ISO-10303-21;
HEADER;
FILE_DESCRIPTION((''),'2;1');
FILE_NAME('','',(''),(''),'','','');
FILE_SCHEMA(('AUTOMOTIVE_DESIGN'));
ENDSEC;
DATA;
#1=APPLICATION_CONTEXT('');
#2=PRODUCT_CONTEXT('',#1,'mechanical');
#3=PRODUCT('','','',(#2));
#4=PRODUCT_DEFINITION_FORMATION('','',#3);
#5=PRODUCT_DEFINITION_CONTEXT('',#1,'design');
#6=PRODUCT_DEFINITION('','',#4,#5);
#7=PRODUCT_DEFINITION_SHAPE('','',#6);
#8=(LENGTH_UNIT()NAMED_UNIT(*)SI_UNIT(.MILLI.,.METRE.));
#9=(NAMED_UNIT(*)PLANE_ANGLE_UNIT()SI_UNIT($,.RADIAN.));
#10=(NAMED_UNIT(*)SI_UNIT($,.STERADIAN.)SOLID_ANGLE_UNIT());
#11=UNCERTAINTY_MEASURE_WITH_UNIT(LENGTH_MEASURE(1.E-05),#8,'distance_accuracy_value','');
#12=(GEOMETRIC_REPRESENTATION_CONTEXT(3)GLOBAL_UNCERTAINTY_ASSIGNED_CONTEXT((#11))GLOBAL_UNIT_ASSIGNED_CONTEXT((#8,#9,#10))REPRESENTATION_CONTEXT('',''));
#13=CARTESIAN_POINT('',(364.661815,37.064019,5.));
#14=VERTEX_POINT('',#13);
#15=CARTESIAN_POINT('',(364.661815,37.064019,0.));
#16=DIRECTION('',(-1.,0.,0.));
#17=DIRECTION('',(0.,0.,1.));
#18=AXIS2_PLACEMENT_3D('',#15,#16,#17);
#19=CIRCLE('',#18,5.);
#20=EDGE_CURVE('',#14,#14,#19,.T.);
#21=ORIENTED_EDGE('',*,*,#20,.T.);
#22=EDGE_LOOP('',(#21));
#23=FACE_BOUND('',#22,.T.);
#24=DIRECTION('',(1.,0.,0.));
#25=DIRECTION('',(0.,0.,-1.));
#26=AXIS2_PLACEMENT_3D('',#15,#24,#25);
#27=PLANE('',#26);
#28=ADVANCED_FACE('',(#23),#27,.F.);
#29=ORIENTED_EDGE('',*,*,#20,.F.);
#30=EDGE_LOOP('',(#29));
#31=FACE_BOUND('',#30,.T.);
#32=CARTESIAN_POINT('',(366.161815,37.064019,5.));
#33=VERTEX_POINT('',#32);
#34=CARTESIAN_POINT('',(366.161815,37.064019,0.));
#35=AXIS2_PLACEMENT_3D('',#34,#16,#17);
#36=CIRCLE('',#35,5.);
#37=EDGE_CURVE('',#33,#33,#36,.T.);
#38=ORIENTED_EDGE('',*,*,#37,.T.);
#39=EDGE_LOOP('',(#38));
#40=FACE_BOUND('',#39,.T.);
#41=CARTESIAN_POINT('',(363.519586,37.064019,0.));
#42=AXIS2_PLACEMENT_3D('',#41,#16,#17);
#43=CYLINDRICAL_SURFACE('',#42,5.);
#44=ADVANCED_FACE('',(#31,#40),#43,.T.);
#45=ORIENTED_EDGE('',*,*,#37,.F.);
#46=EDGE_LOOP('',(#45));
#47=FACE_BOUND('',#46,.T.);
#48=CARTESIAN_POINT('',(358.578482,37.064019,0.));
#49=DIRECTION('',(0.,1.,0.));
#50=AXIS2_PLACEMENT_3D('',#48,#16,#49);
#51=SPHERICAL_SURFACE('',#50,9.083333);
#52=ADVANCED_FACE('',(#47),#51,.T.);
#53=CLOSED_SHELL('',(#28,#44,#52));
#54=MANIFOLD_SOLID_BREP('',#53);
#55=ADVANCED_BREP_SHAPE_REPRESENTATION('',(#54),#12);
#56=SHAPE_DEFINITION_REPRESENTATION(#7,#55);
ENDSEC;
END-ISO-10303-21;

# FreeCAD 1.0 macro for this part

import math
import FreeCAD as App
import Part
import Sketcher

V = App.Vector

doc = App.newDocument("Part")
params = doc.addObject("Spreadsheet::Sheet", "Params")
for row, (alias, value) in enumerate([
    ("sketch1_width", "3 mm"),
    ("sketch1_height", "5 mm"),
    ("sketch1_width2", "1.5 mm"),
    ("revolution_angle", "360 deg"),
], start=1):
    params.set(f"A{row}", alias)
    params.set(f"B{row}", "=" + value)
    params.setAlias(f"B{row}", alias)

body = doc.addObject("PartDesign::Body", "Body")

# Sketch on XY plane
sketch1 = body.newObject("Sketcher::SketchObject", "Sketch")
sketch1.AttachmentSupport = (doc.getObject("XY_Plane"), [""])
sketch1.MapMode = "FlatFace"
sketch1.addGeometry([
    Part.LineSegment(V(364.7, 42.1, 0), V(364.7, 37.1, 0)),
    Part.LineSegment(V(364.7, 37.1, 0), V(367.7, 37.1, 0)),
    Part.ArcOfCircle(Part.Circle(V(358.6, 37.1, 0), V(0, 0, 1), 9.1), math.radians(0), math.radians(33)),
    Part.LineSegment(V(366.2, 42.1, 0), V(364.7, 42.1, 0)),
], False)
sketch1.addGeometry(Part.LineSegment(V(358.6, 37.1, 0), V(367.7, 37.1, 0)), True)  # axis
sketch1.addConstraint([
    Sketcher.Constraint("Coincident", 0, 2, 1, 1),
    Sketcher.Constraint("Coincident", 1, 2, 2, 1),
    Sketcher.Constraint("Coincident", 2, 2, 3, 1),
    Sketcher.Constraint("Coincident", 3, 2, 0, 1),
    Sketcher.Constraint("Vertical", 0),
    Sketcher.Constraint("Horizontal", 1),
    Sketcher.Constraint("Horizontal", 3),
    Sketcher.Constraint("Horizontal", 4),
    Sketcher.Constraint("Coincident", 4, 1, 2, 3),
    Sketcher.Constraint("Coincident", 4, 2, 1, 2),
    Sketcher.Constraint("DistanceX", 1, 1, 1, 2, 3.0),
    Sketcher.Constraint("DistanceY", 0, 2, 0, 1, 5.0),
    Sketcher.Constraint("DistanceX", 3, 2, 3, 1, 1.5),
    Sketcher.Constraint("DistanceY", -1, 1, 2, 3, 37.064019),
    Sketcher.Constraint("DistanceX", -1, 1, 2, 3, 358.578482),
])
sketch1.setExpression("Constraints[10]", "Params.sketch1_width")
sketch1.setExpression("Constraints[11]", "Params.sketch1_height")
sketch1.setExpression("Constraints[12]", "Params.sketch1_width2")
revolution = body.newObject("PartDesign::Revolution", "Revolution")
revolution.Profile = sketch1
revolution.ReferenceAxis = (sketch1, ["Axis0"])
revolution.setExpression("Angle", "Params.revolution_angle")

doc.recompute()
